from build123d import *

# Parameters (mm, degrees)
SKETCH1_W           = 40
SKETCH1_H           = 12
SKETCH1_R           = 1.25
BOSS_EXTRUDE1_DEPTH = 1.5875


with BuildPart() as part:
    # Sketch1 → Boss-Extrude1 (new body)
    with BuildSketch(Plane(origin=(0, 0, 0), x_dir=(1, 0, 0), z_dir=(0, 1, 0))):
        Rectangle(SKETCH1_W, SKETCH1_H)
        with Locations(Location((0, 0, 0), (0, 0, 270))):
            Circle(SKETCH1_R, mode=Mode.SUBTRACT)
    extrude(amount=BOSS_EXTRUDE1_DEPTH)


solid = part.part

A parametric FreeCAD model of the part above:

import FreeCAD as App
import Part
import Sketcher

V = App.Vector
Q = App.Units.Quantity

doc = App.newDocument("Part")
body = doc.addObject("PartDesign::Body", "Body")

# Sketch on XZ plane
sketch1 = body.newObject("Sketcher::SketchObject", "Sketch")
sketch1.AttachmentSupport = (doc.getObject("XZ_Plane"), [""])
sketch1.MapMode = "FlatFace"
sketch1.addGeometry([
    Part.LineSegment(V(-20, -6, 0), V(-20, 6, 0)),  # 0
    Part.LineSegment(V(-20, 6, 0), V(20, 6, 0)),  # 1
    Part.LineSegment(V(20, 6, 0), V(20, -6, 0)),  # 2
    Part.LineSegment(V(20, -6, 0), V(-20, -6, 0)),  # 3
    Part.Circle(V(0, 0, 0), V(0, 0, 1), 1.25),  # 4
], False)
sketch1.addConstraint([
    Sketcher.Constraint("Coincident", 0, 2, 1, 1),
    Sketcher.Constraint("Coincident", 1, 2, 2, 1),
    Sketcher.Constraint("Coincident", 2, 2, 3, 1),
    Sketcher.Constraint("Coincident", 3, 2, 0, 1),
    Sketcher.Constraint("Vertical", 0),
    Sketcher.Constraint("Horizontal", 1),
    Sketcher.Constraint("Vertical", 2),
    Sketcher.Constraint("Horizontal", 3),
    Sketcher.Constraint("Coincident", 4, 3, -1, 1),
    Sketcher.Constraint("Symmetric", 0, 2, 2, 2, -1, 1),
    Sketcher.Constraint("Diameter", 4, Q("2.5 mm")),
    Sketcher.Constraint("DistanceX", 1, 1, 1, 2, Q("40 mm")),
    Sketcher.Constraint("DistanceY", 0, 1, 0, 2, Q("12 mm")),
])
pad1 = body.newObject("PartDesign::Pad", "Pad")
pad1.Profile = sketch1
pad1.Length = 1.5875
pad1.Reversed = True

doc.recompute()
